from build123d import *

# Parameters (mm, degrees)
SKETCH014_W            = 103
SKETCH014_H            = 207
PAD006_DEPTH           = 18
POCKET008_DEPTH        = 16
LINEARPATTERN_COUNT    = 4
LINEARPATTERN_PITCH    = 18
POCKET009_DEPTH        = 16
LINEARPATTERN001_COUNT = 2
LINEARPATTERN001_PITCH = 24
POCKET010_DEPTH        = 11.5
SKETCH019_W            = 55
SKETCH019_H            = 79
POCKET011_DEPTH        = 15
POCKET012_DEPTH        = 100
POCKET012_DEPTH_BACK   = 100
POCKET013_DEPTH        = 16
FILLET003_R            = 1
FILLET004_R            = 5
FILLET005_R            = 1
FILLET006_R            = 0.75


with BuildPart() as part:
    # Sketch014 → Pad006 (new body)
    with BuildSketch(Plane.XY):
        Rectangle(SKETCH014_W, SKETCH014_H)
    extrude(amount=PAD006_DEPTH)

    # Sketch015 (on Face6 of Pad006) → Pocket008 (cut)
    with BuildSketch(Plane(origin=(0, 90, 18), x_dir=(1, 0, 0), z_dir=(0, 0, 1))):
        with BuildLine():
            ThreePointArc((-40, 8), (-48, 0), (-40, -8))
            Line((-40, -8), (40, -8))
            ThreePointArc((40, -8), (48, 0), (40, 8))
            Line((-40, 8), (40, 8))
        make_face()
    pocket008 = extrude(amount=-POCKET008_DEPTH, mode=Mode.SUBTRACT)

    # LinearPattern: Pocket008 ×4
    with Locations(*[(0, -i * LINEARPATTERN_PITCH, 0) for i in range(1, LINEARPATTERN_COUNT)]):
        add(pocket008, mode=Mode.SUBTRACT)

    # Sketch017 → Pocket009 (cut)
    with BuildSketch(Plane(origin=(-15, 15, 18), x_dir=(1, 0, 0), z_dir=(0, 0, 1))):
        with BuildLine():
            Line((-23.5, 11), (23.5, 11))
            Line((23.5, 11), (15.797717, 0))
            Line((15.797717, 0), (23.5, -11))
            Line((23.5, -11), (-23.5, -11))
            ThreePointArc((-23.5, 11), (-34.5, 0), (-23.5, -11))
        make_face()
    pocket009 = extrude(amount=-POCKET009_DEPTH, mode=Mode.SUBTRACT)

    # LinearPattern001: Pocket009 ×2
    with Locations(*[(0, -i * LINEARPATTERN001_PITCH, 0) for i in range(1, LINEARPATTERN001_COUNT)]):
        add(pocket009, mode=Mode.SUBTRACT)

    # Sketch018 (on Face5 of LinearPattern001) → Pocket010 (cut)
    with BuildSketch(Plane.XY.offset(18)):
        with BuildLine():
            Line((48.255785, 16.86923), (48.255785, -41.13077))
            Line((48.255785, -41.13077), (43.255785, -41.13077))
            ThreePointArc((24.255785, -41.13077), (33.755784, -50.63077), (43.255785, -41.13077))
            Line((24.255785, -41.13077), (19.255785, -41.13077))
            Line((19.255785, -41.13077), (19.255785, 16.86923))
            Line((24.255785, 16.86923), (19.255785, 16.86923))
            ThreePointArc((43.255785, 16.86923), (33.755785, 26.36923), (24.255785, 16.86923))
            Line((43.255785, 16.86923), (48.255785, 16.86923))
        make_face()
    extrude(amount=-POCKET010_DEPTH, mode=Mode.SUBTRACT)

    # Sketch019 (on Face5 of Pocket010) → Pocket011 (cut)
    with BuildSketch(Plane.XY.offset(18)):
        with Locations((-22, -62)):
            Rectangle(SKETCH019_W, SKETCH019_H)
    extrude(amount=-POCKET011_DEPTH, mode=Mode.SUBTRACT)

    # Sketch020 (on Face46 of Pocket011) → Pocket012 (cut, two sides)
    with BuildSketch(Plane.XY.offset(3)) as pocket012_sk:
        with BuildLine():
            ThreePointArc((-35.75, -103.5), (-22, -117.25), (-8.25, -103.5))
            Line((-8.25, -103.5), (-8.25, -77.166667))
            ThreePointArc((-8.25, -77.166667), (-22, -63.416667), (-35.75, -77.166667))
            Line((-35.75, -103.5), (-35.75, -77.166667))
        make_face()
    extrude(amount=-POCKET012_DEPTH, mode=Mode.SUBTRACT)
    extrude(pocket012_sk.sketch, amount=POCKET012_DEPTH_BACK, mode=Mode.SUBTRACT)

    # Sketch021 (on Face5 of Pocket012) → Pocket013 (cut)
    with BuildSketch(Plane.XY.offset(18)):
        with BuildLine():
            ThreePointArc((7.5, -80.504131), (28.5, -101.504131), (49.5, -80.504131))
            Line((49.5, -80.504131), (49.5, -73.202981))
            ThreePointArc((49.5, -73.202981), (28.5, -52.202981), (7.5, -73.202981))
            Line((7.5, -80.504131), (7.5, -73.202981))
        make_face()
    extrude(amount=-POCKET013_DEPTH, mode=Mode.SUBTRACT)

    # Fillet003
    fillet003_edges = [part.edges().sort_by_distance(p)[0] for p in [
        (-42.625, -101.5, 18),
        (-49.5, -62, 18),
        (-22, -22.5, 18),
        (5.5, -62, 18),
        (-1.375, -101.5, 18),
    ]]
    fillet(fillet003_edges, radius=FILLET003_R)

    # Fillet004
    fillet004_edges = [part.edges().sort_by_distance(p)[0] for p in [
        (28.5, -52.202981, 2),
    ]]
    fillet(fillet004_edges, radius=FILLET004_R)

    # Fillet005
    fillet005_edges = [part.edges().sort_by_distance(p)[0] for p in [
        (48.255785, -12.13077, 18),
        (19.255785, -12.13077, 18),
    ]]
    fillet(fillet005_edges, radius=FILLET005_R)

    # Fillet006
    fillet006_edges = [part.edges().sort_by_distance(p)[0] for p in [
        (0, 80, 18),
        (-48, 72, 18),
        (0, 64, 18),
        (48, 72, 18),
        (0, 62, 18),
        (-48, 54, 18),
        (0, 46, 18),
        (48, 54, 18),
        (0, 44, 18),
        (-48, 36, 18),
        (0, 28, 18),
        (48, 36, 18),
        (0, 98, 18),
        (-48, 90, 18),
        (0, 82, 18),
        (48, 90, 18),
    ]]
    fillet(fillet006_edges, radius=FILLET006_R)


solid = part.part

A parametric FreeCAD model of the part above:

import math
import FreeCAD as App
import Part
import Sketcher
from FreeCAD import Vector
Q = App.Units.Quantity


def edges_at(feature, points):
    """Names of the edges that pass closest to the given points."""
    edges = feature.Shape.Edges
    near = lambda p: min(range(len(edges)), key=lambda i: edges[i].distToShape(Part.Vertex(*p))[0])
    return sorted({f"Edge{near(p) + 1}" for p in points})


def add_polygon(sketch, points):
    """Adds a closed chain of lines whose ends are joined by coincident constraints."""
    first, n = sketch.GeometryCount, len(points)
    for a, b in zip(points, points[1:] + points[:1]):
        sketch.addGeometry(Part.LineSegment(App.Vector(*a, 0), App.Vector(*b, 0)), False)
    for i in range(n):
        sketch.addConstraint(Sketcher.Constraint("Coincident", first + i, 2, first + (i + 1) % n, 1))

doc = App.newDocument("Part")
params = doc.addObject("Spreadsheet::Sheet", "Params")
for row, (alias, value) in enumerate([
    ("sketch1_width", "103 mm"),
    ("sketch1_height", "207 mm"),
    ("pad1_length", "18 mm"),
    ("sketch2_radius", "8 mm"),
    ("sketch2_width", "80 mm"),
    ("pocket1_length", "16 mm"),
    ("linearpattern_pitch", "18 mm"),
    ("sketch3_radius", "11 mm"),
    ("sketch3_width", "47 mm"),
    ("pocket2_length", "16 mm"),
    ("linearpattern2_pitch", "24 mm"),
    ("sketch4_radius", "9.5 mm"),
    ("sketch4_width", "5 mm"),
    ("sketch4_height", "58 mm"),
    ("pocket3_length", "11.5 mm"),
    ("sketch5_width", "55 mm"),
    ("sketch5_height", "79 mm"),
    ("pocket4_length", "15 mm"),
    ("sketch6_radius", "13.75 mm"),
    ("sketch7_radius", "21 mm"),
    ("pocket6_length", "16 mm"),
    ("fillet_radius", "1 mm"),
    ("fillet2_radius", "5 mm"),
    ("fillet3_radius", "1 mm"),
    ("fillet4_radius", "0.75 mm"),
], start=1):
    params.set(f"A{row}", alias)
    params.set(f"B{row}", "=" + value)
    params.setAlias(f"B{row}", alias)

body = doc.addObject("PartDesign::Body", "Body")

# Sketch on XY plane
sketch1 = body.newObject("Sketcher::SketchObject", "Sketch")
sketch1.AttachmentSupport = (doc.getObject("XY_Plane"), [""])
sketch1.MapMode = "FlatFace"
add_polygon(sketch1, [(-52, 104), (-52, -104), (52, -104), (52, 104)])  # lines 0-3
sketch1.addConstraint(Sketcher.Constraint("Vertical", 0))
sketch1.addConstraint(Sketcher.Constraint("Horizontal", 1))
sketch1.addConstraint(Sketcher.Constraint("Vertical", 2))
sketch1.addConstraint(Sketcher.Constraint("Horizontal", 3))
sketch1.addConstraint(Sketcher.Constraint("Symmetric", 0, 2, 2, 2, -1, 1))
sketch1.addConstraint(Sketcher.Constraint("DistanceX", 1, 1, 1, 2, 103.0))
sketch1.addConstraint(Sketcher.Constraint("DistanceY", 0, 2, 0, 1, 207.0))
sketch1.setExpression("Constraints[9]", "Params.sketch1_width")
sketch1.setExpression("Constraints[10]", "Params.sketch1_height")
pad1 = body.newObject("PartDesign::Pad", "Pad")
pad1.Profile = sketch1
pad1.setExpression("Length", "Params.pad1_length")

# Sketch on XY plane
sketch2 = body.newObject("Sketcher::SketchObject", "Sketch001")
sketch2.AttachmentSupport = (doc.getObject("XY_Plane"), [""])
sketch2.MapMode = "FlatFace"
sketch2.AttachmentOffset = App.Placement(Vector(0, 0, 18), App.Rotation())
sketch2.addGeometry(Part.ArcOfCircle(Part.Circle(Vector(-40, 90, 0), Vector(0, 0, 1), 8), math.radians(90), math.radians(270)), False)
sketch2.addGeometry(Part.LineSegment(Vector(-40, 82, 0), Vector(40, 82, 0)), False)
sketch2.addGeometry(Part.ArcOfCircle(Part.Circle(Vector(40, 90, 0), Vector(0, 0, 1), 8), math.radians(-90), math.radians(90)), False)
sketch2.addGeometry(Part.LineSegment(Vector(40, 98, 0), Vector(-40, 98, 0)), False)
sketch2.addConstraint(Sketcher.Constraint("Tangent", 0, 2, 1, 1))
sketch2.addConstraint(Sketcher.Constraint("Tangent", 1, 2, 2, 1))
sketch2.addConstraint(Sketcher.Constraint("Tangent", 2, 2, 3, 1))
sketch2.addConstraint(Sketcher.Constraint("Tangent", 3, 2, 0, 1))
sketch2.addConstraint(Sketcher.Constraint("Horizontal", 1))
sketch2.addConstraint(Sketcher.Constraint("Horizontal", 3))
sketch2.addConstraint(Sketcher.Constraint("Radius", 0, 8.0))
sketch2.addConstraint(Sketcher.Constraint("DistanceX", 1, 1, 1, 2, 80.0))
sketch2.addConstraint(Sketcher.Constraint("DistanceX", 0, 3, -1, 1, 40.0))
sketch2.addConstraint(Sketcher.Constraint("DistanceY", -1, 1, 0, 3, 90.0))
sketch2.setExpression("Constraints[6]", "Params.sketch2_radius")
sketch2.setExpression("Constraints[7]", "Params.sketch2_width")
pocket1 = body.newObject("PartDesign::Pocket", "Pocket")
pocket1.Profile = sketch2
pocket1.setExpression("Length", "Params.pocket1_length")
doc.recompute()

linearpattern = body.newObject("PartDesign::LinearPattern", "LinearPattern")
linearpattern.Originals = [pocket1]
linearpattern.Direction = (doc.getObject("Y_Axis"), [""])
linearpattern.Mode = "offset"
linearpattern.setExpression("Offset", "Params.linearpattern_pitch")
linearpattern.Occurrences = 4
linearpattern.Reversed = True
body.Tip = linearpattern

# Sketch on XY plane
sketch3 = body.newObject("Sketcher::SketchObject", "Sketch002")
sketch3.AttachmentSupport = (doc.getObject("XY_Plane"), [""])
sketch3.MapMode = "FlatFace"
sketch3.AttachmentOffset = App.Placement(Vector(0, 0, 18), App.Rotation())
sketch3.addGeometry(Part.LineSegment(Vector(8, 26, 0), Vector(-38, 26, 0)), False)
sketch3.addGeometry(Part.ArcOfCircle(Part.Circle(Vector(-38, 15, 0), Vector(0, 0, 1), 11), math.radians(90), math.radians(270)), False)
sketch3.addGeometry(Part.LineSegment(Vector(-38, 4, 0), Vector(8, 4, 0)), False)
sketch3.addGeometry(Part.LineSegment(Vector(8, 4, 0), Vector(1, 15, 0)), False)
sketch3.addGeometry(Part.LineSegment(Vector(1, 15, 0), Vector(8, 26, 0)), False)
sketch3.addConstraint(Sketcher.Constraint("Tangent", 0, 2, 1, 1))
sketch3.addConstraint(Sketcher.Constraint("Tangent", 1, 2, 2, 1))
sketch3.addConstraint(Sketcher.Constraint("Coincident", 2, 2, 3, 1))
sketch3.addConstraint(Sketcher.Constraint("Coincident", 3, 2, 4, 1))
sketch3.addConstraint(Sketcher.Constraint("Coincident", 4, 2, 0, 1))
sketch3.addConstraint(Sketcher.Constraint("Horizontal", 0))
sketch3.addConstraint(Sketcher.Constraint("Horizontal", 2))
sketch3.addConstraint(Sketcher.Constraint("Horizontal", 1, 3, 3, 2))
sketch3.addConstraint(Sketcher.Constraint("Vertical", 2, 2, 4, 2))
sketch3.addConstraint(Sketcher.Constraint("Radius", 1, 11.0))
sketch3.addConstraint(Sketcher.Constraint("DistanceX", 0, 2, 0, 1, 47.0))
sketch3.addConstraint(Sketcher.Constraint("Angle", 3, Q("125 deg")))
sketch3.addConstraint(Sketcher.Constraint("DistanceY", -1, 1, 1, 3, 15.0))
sketch3.addConstraint(Sketcher.Constraint("DistanceX", 1, 3, -1, 1, 38.5))
sketch3.setExpression("Constraints[9]", "Params.sketch3_radius")
sketch3.setExpression("Constraints[10]", "Params.sketch3_width")
pocket2 = body.newObject("PartDesign::Pocket", "Pocket001")
pocket2.Profile = sketch3
pocket2.setExpression("Length", "Params.pocket2_length")
doc.recompute()

linearpattern2 = body.newObject("PartDesign::LinearPattern", "LinearPattern001")
linearpattern2.Originals = [pocket2]
linearpattern2.Direction = (doc.getObject("Y_Axis"), [""])
linearpattern2.Mode = "offset"
linearpattern2.setExpression("Offset", "Params.linearpattern2_pitch")
linearpattern2.Occurrences = 2
linearpattern2.Reversed = True
body.Tip = linearpattern2

# Sketch on XY plane
sketch4 = body.newObject("Sketcher::SketchObject", "Sketch003")
sketch4.AttachmentSupport = (doc.getObject("XY_Plane"), [""])
sketch4.MapMode = "FlatFace"
sketch4.AttachmentOffset = App.Placement(Vector(0, 0, 18), App.Rotation())
sketch4.addGeometry(Part.LineSegment(Vector(48, -41, 0), Vector(48, 17, 0)), False)
sketch4.addGeometry(Part.LineSegment(Vector(48, 17, 0), Vector(43, 17, 0)), False)
sketch4.addGeometry(Part.ArcOfCircle(Part.Circle(Vector(34, 17, 0), Vector(0, 0, 1), 10), math.radians(0), math.radians(180)), False)
sketch4.addGeometry(Part.LineSegment(Vector(24, 17, 0), Vector(19, 17, 0)), False)
sketch4.addGeometry(Part.LineSegment(Vector(19, 17, 0), Vector(19, -41, 0)), False)
sketch4.addGeometry(Part.LineSegment(Vector(19, -41, 0), Vector(24, -41, 0)), False)
sketch4.addGeometry(Part.ArcOfCircle(Part.Circle(Vector(34, -41, 0), Vector(0, 0, 1), 10), math.radians(180), math.radians(360)), False)
sketch4.addGeometry(Part.LineSegment(Vector(43, -41, 0), Vector(48, -41, 0)), False)
sketch4.addConstraint(Sketcher.Constraint("Coincident", 0, 2, 1, 1))
sketch4.addConstraint(Sketcher.Constraint("Coincident", 1, 2, 2, 1))
sketch4.addConstraint(Sketcher.Constraint("Coincident", 2, 2, 3, 1))
sketch4.addConstraint(Sketcher.Constraint("Coincident", 3, 2, 4, 1))
sketch4.addConstraint(Sketcher.Constraint("Coincident", 4, 2, 5, 1))
sketch4.addConstraint(Sketcher.Constraint("Coincident", 5, 2, 6, 1))
sketch4.addConstraint(Sketcher.Constraint("Coincident", 6, 2, 7, 1))
sketch4.addConstraint(Sketcher.Constraint("Coincident", 7, 2, 0, 1))
sketch4.addConstraint(Sketcher.Constraint("Vertical", 0))
sketch4.addConstraint(Sketcher.Constraint("Horizontal", 1))
sketch4.addConstraint(Sketcher.Constraint("Horizontal", 3))
sketch4.addConstraint(Sketcher.Constraint("Vertical", 4))
sketch4.addConstraint(Sketcher.Constraint("Horizontal", 5))
sketch4.addConstraint(Sketcher.Constraint("Horizontal", 7))
sketch4.addConstraint(Sketcher.Constraint("Equal", 2, 6))
sketch4.addConstraint(Sketcher.Constraint("Horizontal", 2, 3, 0, 2))
sketch4.addConstraint(Sketcher.Constraint("Horizontal", 1, 2, 2, 2))
sketch4.addConstraint(Sketcher.Constraint("Horizontal", 6, 3, 4, 2))
sketch4.addConstraint(Sketcher.Constraint("Horizontal", 5, 2, 6, 2))
sketch4.addConstraint(Sketcher.Constraint("Vertical", 2, 3, 6, 3))
sketch4.addConstraint(Sketcher.Constraint("Equal", 1, 3))
sketch4.addConstraint(Sketcher.Constraint("Radius", 2, 9.5))
sketch4.addConstraint(Sketcher.Constraint("DistanceX", 1, 2, 1, 1, 5.0))
sketch4.addConstraint(Sketcher.Constraint("DistanceY", 0, 1, 0, 2, 58.0))
sketch4.addConstraint(Sketcher.Constraint("DistanceY", -1, 1, 2, 3, 16.86923))
sketch4.addConstraint(Sketcher.Constraint("DistanceX", -1, 1, 2, 3, 33.755785))
sketch4.setExpression("Constraints[21]", "Params.sketch4_radius")
sketch4.setExpression("Constraints[22]", "Params.sketch4_width")
sketch4.setExpression("Constraints[23]", "Params.sketch4_height")
pocket3 = body.newObject("PartDesign::Pocket", "Pocket002")
pocket3.Profile = sketch4
pocket3.setExpression("Length", "Params.pocket3_length")

# Sketch on XY plane
sketch5 = body.newObject("Sketcher::SketchObject", "Sketch004")
sketch5.AttachmentSupport = (doc.getObject("XY_Plane"), [""])
sketch5.MapMode = "FlatFace"
sketch5.AttachmentOffset = App.Placement(Vector(0, 0, 18), App.Rotation())
add_polygon(sketch5, [(-50, -22), (-50, -102), (6, -102), (6, -22)])  # lines 0-3
sketch5.addConstraint(Sketcher.Constraint("Vertical", 0))
sketch5.addConstraint(Sketcher.Constraint("Horizontal", 1))
sketch5.addConstraint(Sketcher.Constraint("Vertical", 2))
sketch5.addConstraint(Sketcher.Constraint("Horizontal", 3))
sketch5.addConstraint(Sketcher.Constraint("DistanceX", 1, 1, 1, 2, 55.0))
sketch5.addConstraint(Sketcher.Constraint("DistanceY", 0, 2, 0, 1, 79.0))
sketch5.addConstraint(Sketcher.Constraint("DistanceX", 0, 2, -1, 1, 49.5))
sketch5.addConstraint(Sketcher.Constraint("DistanceY", 0, 2, -1, 1, 101.5))
sketch5.setExpression("Constraints[8]", "Params.sketch5_width")
sketch5.setExpression("Constraints[9]", "Params.sketch5_height")
pocket4 = body.newObject("PartDesign::Pocket", "Pocket003")
pocket4.Profile = sketch5
pocket4.setExpression("Length", "Params.pocket4_length")

# Sketch on XY plane
sketch6 = body.newObject("Sketcher::SketchObject", "Sketch005")
sketch6.AttachmentSupport = (doc.getObject("XY_Plane"), [""])
sketch6.MapMode = "FlatFace"
sketch6.AttachmentOffset = App.Placement(Vector(0, 0, 3), App.Rotation())
sketch6.addGeometry(Part.ArcOfCircle(Part.Circle(Vector(-22, -104, 0), Vector(0, 0, 1), 14), math.radians(180), math.radians(360)), False)
sketch6.addGeometry(Part.LineSegment(Vector(-8, -104, 0), Vector(-8, -77, 0)), False)
sketch6.addGeometry(Part.ArcOfCircle(Part.Circle(Vector(-22, -77, 0), Vector(0, 0, 1), 14), math.radians(0), math.radians(180)), False)
sketch6.addGeometry(Part.LineSegment(Vector(-36, -77, 0), Vector(-36, -104, 0)), False)
sketch6.addConstraint(Sketcher.Constraint("Tangent", 0, 2, 1, 1))
sketch6.addConstraint(Sketcher.Constraint("Tangent", 1, 2, 2, 1))
sketch6.addConstraint(Sketcher.Constraint("Tangent", 2, 2, 3, 1))
sketch6.addConstraint(Sketcher.Constraint("Tangent", 3, 2, 0, 1))
sketch6.addConstraint(Sketcher.Constraint("Vertical", 1))
sketch6.addConstraint(Sketcher.Constraint("Vertical", 3))
sketch6.addConstraint(Sketcher.Constraint("Radius", 0, 13.75))
sketch6.addConstraint(Sketcher.Constraint("DistanceX", 0, 3, -1, 1, 22.0))
sketch6.addConstraint(Sketcher.Constraint("DistanceY", 0, 3, -1, 1, 103.5))
sketch6.addConstraint(Sketcher.Constraint("DistanceY", 1, 1, 1, 2, 26.333333))
sketch6.setExpression("Constraints[6]", "Params.sketch6_radius")
pocket5 = body.newObject("PartDesign::Pocket", "Pocket004")
pocket5.Profile = sketch6
pocket5.Type = "ThroughAll"
pocket5.Midplane = True

# Sketch on XY plane
sketch7 = body.newObject("Sketcher::SketchObject", "Sketch006")
sketch7.AttachmentSupport = (doc.getObject("XY_Plane"), [""])
sketch7.MapMode = "FlatFace"
sketch7.AttachmentOffset = App.Placement(Vector(0, 0, 18), App.Rotation())
sketch7.addGeometry(Part.ArcOfCircle(Part.Circle(Vector(28, -81, 0), Vector(0, 0, 1), 21), math.radians(180), math.radians(360)), False)
sketch7.addGeometry(Part.LineSegment(Vector(50, -81, 0), Vector(50, -73, 0)), False)
sketch7.addGeometry(Part.ArcOfCircle(Part.Circle(Vector(28, -73, 0), Vector(0, 0, 1), 21), math.radians(0), math.radians(180)), False)
sketch7.addGeometry(Part.LineSegment(Vector(8, -73, 0), Vector(8, -81, 0)), False)
sketch7.addConstraint(Sketcher.Constraint("Tangent", 0, 2, 1, 1))
sketch7.addConstraint(Sketcher.Constraint("Tangent", 1, 2, 2, 1))
sketch7.addConstraint(Sketcher.Constraint("Tangent", 2, 2, 3, 1))
sketch7.addConstraint(Sketcher.Constraint("Tangent", 3, 2, 0, 1))
sketch7.addConstraint(Sketcher.Constraint("Vertical", 1))
sketch7.addConstraint(Sketcher.Constraint("Vertical", 3))
sketch7.addConstraint(Sketcher.Constraint("Radius", 0, 21.0))
sketch7.addConstraint(Sketcher.Constraint("DistanceX", -1, 1, 0, 3, 28.5))
sketch7.addConstraint(Sketcher.Constraint("DistanceY", 1, 1, 1, 2, 7.30115))
sketch7.addConstraint(Sketcher.Constraint("DistanceY", 0, 3, -1, 1, 80.504131))
sketch7.setExpression("Constraints[6]", "Params.sketch7_radius")
pocket6 = body.newObject("PartDesign::Pocket", "Pocket005")
pocket6.Profile = sketch7
pocket6.setExpression("Length", "Params.pocket6_length")
doc.recompute()

fillet = body.newObject("PartDesign::Fillet", "Fillet")
fillet.Base = (pocket6, edges_at(pocket6, [
    (-42.625, -101.5, 18),
    (-49.5, -62, 18),
    (-22, -22.5, 18),
    (5.5, -62, 18),
    (-1.375, -101.5, 18),
]))
fillet.setExpression("Radius", "Params.fillet_radius")
doc.recompute()

fillet2 = body.newObject("PartDesign::Fillet", "Fillet001")
fillet2.Base = (fillet, edges_at(fillet, [(28.5, -52.203, 2)]))
fillet2.setExpression("Radius", "Params.fillet2_radius")
doc.recompute()

fillet3 = body.newObject("PartDesign::Fillet", "Fillet002")
fillet3.Base = (fillet2, edges_at(fillet2, [(48.256, -12.131, 18), (19.256, -12.131, 18)]))
fillet3.setExpression("Radius", "Params.fillet3_radius")
doc.recompute()

fillet4 = body.newObject("PartDesign::Fillet", "Fillet003")
fillet4.Base = (fillet3, edges_at(fillet3, [
    (0, 80, 18),
    (-48, 72, 18),
    (0, 64, 18),
    (48, 72, 18),
    (0, 62, 18),
    (-48, 54, 18),
    (0, 46, 18),
    (48, 54, 18),
    (0, 44, 18),
    (-48, 36, 18),
    (0, 28, 18),
    (48, 36, 18),
    (0, 98, 18),
    (-48, 90, 18),
    (0, 82, 18),
    (48, 90, 18),
]))
fillet4.setExpression("Radius", "Params.fillet4_radius")

doc.recompute()
